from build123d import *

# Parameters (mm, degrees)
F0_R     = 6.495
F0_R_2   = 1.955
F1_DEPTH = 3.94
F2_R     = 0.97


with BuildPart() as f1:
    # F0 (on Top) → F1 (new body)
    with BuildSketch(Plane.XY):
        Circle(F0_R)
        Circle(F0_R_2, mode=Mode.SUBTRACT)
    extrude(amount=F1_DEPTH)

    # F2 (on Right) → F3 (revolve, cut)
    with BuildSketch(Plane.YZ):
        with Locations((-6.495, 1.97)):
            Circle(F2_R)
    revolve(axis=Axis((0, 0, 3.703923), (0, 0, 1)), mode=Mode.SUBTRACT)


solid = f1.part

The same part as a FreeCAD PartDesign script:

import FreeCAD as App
import Part
import Sketcher

V = App.Vector
Q = App.Units.Quantity

doc = App.newDocument("Part")
body = doc.addObject("PartDesign::Body", "Body")

# Sketch on XY plane
sketch1 = body.newObject("Sketcher::SketchObject", "Sketch")
sketch1.AttachmentSupport = (doc.getObject("XY_Plane"), [""])
sketch1.MapMode = "FlatFace"
sketch1.addGeometry(Part.Circle(V(0, 0, 0), V(0, 0, 1), 6.5), False)
sketch1.addGeometry(Part.Circle(V(0, 0, 0), V(0, 0, 1), 2), False)
sketch1.addConstraint(Sketcher.Constraint("Coincident", 0, 3, -1, 1))
sketch1.addConstraint(Sketcher.Constraint("Coincident", 1, 3, -1, 1))
sketch1.addConstraint(Sketcher.Constraint("Diameter", 0, Q("12.99 mm")))
sketch1.addConstraint(Sketcher.Constraint("Diameter", 1, Q("3.91 mm")))
pad1 = body.newObject("PartDesign::Pad", "Pad")
pad1.Profile = sketch1
pad1.Length = 3.94

# Sketch on YZ plane
sketch2 = body.newObject("Sketcher::SketchObject", "Sketch001")
sketch2.AttachmentSupport = (doc.getObject("YZ_Plane"), [""])
sketch2.MapMode = "FlatFace"
sketch2.addGeometry(Part.Circle(V(-6.5, 2, 0), V(0, 0, 1), 1), False)
sketch2.addConstraint(Sketcher.Constraint("Diameter", 0, Q("1.94 mm")))
sketch2.addConstraint(Sketcher.Constraint("DistanceY", -1, 1, 0, 3, Q("1.97 mm")))
sketch2.addConstraint(Sketcher.Constraint("DistanceX", 0, 3, -1, 1, Q("6.495 mm")))
groove = body.newObject("PartDesign::Groove", "Groove")
groove.Profile = sketch2
groove.ReferenceAxis = (sketch2, ["V_Axis"])
groove.Angle = 360

doc.recompute()
